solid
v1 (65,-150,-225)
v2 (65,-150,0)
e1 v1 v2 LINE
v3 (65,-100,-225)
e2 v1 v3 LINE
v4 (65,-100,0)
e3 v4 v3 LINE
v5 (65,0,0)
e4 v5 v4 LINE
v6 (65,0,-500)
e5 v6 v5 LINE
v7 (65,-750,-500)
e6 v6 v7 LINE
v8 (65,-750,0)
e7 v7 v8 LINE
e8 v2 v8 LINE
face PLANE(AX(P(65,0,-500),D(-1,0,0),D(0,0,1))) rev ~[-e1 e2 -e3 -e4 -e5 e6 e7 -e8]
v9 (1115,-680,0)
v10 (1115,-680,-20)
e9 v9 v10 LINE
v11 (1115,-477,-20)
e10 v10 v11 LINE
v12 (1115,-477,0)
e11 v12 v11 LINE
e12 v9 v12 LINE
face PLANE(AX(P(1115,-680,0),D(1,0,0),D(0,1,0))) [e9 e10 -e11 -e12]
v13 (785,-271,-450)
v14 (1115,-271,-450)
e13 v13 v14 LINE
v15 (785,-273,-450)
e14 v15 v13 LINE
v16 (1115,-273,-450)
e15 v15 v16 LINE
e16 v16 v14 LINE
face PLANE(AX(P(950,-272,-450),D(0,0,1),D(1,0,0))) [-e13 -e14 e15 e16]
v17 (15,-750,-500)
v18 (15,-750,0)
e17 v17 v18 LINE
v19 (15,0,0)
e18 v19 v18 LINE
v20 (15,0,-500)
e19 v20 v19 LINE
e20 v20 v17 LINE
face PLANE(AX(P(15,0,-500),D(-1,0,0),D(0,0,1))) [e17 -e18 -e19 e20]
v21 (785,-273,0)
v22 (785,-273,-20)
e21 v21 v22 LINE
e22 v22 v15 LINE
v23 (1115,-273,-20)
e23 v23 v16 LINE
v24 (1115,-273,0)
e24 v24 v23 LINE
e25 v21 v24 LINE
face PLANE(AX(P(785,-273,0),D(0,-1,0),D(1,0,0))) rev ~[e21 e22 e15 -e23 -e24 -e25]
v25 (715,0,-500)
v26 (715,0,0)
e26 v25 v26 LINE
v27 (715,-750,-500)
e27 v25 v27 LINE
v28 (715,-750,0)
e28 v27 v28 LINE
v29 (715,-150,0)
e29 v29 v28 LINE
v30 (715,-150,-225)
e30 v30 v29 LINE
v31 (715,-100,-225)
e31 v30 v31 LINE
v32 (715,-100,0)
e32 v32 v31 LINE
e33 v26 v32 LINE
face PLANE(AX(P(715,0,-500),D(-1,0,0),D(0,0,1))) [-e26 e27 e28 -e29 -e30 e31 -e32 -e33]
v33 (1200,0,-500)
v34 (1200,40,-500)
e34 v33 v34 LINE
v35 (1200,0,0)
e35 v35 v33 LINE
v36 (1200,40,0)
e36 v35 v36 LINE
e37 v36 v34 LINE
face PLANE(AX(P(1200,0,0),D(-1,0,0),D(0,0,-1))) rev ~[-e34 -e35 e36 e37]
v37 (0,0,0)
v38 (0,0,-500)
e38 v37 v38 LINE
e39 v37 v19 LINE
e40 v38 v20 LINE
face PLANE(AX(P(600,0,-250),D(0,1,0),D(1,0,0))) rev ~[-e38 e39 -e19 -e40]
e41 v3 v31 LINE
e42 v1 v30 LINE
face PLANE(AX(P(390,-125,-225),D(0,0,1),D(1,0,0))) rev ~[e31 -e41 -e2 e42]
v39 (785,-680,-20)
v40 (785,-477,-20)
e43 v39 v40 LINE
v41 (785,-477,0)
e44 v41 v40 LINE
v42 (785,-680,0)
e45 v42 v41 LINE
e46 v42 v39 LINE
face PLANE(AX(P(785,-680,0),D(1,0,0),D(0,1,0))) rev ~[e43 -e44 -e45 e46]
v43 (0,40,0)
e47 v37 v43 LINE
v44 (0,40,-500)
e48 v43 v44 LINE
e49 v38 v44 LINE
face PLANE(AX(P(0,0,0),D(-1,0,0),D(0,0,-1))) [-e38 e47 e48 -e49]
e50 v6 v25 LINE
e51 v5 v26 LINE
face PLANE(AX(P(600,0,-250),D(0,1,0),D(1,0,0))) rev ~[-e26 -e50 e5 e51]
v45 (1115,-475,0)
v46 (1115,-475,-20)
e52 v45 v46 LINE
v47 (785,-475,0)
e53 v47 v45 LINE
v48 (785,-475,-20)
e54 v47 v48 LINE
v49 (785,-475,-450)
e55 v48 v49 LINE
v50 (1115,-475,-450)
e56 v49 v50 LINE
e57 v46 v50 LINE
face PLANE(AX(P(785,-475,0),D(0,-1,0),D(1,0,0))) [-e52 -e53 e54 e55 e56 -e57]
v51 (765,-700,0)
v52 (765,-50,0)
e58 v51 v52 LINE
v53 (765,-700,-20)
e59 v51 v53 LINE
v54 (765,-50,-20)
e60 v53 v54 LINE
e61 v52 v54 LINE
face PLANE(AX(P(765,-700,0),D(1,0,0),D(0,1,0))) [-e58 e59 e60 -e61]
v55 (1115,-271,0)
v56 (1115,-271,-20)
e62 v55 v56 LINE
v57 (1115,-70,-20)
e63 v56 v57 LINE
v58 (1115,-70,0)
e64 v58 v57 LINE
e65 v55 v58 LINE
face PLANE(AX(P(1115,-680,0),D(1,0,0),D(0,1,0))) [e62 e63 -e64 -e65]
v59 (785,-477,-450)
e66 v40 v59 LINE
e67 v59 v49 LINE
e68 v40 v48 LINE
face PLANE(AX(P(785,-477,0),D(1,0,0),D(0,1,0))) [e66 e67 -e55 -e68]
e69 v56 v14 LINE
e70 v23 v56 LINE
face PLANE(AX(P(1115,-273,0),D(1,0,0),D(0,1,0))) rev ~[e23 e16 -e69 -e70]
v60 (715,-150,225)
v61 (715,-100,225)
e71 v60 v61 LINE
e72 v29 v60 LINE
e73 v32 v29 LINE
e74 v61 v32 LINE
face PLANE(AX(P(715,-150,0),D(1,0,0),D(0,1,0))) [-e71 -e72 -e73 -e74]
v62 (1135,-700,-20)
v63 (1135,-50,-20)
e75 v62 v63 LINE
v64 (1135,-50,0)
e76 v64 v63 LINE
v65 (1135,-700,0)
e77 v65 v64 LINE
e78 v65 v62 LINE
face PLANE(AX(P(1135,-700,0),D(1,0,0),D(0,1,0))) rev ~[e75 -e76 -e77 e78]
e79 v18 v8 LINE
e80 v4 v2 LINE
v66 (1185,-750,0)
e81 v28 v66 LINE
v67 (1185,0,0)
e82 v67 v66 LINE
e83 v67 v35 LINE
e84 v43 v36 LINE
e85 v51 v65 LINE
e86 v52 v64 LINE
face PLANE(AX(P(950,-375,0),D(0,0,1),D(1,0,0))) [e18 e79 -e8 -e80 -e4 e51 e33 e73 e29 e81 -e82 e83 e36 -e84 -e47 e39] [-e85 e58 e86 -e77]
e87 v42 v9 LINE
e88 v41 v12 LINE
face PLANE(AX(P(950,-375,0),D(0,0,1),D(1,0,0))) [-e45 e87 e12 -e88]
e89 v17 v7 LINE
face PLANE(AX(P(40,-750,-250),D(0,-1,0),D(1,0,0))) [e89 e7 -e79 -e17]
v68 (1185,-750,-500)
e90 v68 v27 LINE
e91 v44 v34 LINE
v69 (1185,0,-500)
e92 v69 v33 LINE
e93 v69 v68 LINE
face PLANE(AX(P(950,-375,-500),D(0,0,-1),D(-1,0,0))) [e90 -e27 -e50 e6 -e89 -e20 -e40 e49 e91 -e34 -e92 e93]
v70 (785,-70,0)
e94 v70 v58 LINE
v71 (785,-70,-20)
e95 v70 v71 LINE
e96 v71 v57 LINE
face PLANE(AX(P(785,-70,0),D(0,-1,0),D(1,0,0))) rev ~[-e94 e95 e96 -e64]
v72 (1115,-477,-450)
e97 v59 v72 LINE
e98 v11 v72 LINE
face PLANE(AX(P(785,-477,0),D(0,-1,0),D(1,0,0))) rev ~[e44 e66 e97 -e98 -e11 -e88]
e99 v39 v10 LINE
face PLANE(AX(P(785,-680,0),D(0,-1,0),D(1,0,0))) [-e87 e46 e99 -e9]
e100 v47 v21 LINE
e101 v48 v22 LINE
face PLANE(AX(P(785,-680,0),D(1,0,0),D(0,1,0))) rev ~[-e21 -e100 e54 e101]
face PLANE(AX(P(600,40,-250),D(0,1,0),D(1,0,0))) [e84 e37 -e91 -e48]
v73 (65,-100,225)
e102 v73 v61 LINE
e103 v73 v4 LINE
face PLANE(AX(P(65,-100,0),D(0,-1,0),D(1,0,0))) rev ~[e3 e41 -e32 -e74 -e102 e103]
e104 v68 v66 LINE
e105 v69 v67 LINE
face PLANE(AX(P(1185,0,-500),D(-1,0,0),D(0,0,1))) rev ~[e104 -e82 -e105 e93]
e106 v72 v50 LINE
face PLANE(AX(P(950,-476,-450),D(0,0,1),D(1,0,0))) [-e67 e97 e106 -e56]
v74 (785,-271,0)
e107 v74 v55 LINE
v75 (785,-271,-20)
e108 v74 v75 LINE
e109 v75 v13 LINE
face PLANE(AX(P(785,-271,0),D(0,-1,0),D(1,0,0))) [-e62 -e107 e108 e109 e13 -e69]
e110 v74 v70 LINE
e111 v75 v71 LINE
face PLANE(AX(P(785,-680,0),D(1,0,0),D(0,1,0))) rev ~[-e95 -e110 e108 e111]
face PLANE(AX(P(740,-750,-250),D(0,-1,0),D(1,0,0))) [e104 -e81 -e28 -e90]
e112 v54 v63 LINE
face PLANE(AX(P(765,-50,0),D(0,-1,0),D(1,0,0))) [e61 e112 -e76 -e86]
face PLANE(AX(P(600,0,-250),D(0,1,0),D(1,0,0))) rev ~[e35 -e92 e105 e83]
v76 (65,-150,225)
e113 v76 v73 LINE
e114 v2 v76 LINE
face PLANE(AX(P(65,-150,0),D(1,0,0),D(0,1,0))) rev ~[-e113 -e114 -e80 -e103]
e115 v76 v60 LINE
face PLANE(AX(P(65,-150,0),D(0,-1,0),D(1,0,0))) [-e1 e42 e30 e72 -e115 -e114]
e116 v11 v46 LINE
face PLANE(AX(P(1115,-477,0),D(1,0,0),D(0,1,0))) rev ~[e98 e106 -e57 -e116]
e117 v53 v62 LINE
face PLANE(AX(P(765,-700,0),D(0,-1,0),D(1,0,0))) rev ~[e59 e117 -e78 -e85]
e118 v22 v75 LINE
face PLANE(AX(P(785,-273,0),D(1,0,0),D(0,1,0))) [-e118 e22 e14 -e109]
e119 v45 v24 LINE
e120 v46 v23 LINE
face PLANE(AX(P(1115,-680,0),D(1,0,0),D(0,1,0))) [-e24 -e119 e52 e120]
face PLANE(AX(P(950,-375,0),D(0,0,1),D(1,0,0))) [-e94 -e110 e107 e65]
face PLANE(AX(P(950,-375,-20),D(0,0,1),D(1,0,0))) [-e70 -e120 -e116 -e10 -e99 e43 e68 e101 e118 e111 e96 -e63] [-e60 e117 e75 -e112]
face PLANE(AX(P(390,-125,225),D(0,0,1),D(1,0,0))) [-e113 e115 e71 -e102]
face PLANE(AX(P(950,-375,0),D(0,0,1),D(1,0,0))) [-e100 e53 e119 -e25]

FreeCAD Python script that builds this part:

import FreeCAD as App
import Part
import Sketcher
from FreeCAD import Vector

doc = App.newDocument("Part")
body = doc.addObject("PartDesign::Body", "Body")

sketch1 = body.newObject("Sketcher::SketchObject", "Sketch")
sketch1.AttachmentSupport = (doc.getObject("XZ_Plane"), [""])
sketch1.MapMode = "FlatFace"
sketch1.addGeometry([
    Part.LineSegment(Vector(0, -500, 0), Vector(0, 0, 0)),
    Part.LineSegment(Vector(0, 0, 0), Vector(1200, 0, 0)),
    Part.LineSegment(Vector(1200, 0, 0), Vector(1200, -500, 0)),
    Part.LineSegment(Vector(1200, -500, 0), Vector(0, -500, 0)),
], False)
sketch1.addConstraint([
    Sketcher.Constraint("Coincident", 0, 2, 1, 1),
    Sketcher.Constraint("Coincident", 1, 2, 2, 1),
    Sketcher.Constraint("Coincident", 2, 2, 3, 1),
    Sketcher.Constraint("Coincident", 3, 2, 0, 1),
    Sketcher.Constraint("Vertical", 0),
    Sketcher.Constraint("Horizontal", 1),
    Sketcher.Constraint("Vertical", 2),
    Sketcher.Constraint("Horizontal", 3),
    Sketcher.Constraint("Coincident", 0, 2, -1, 1),
    Sketcher.Constraint("DistanceX", 1, 1, 1, 2, 1200.0),
    Sketcher.Constraint("DistanceY", 0, 1, 0, 2, 500.0),
])
pad1 = body.newObject("PartDesign::Pad", "Pad")
pad1.Profile = sketch1
pad1.Length = 40
pad1.Reversed = True

sketch2 = body.newObject("Sketcher::SketchObject", "Sketch001")
sketch2.AttachmentSupport = (doc.getObject("XZ_Plane"), [""])
sketch2.MapMode = "FlatFace"
sketch2.addGeometry([
    Part.LineSegment(Vector(15, 0, 0), Vector(15, -500, 0)),
    Part.LineSegment(Vector(15, -500, 0), Vector(65, -500, 0)),
    Part.LineSegment(Vector(65, -500, 0), Vector(65, 0, 0)),
    Part.LineSegment(Vector(65, 0, 0), Vector(15, 0, 0)),
    Part.LineSegment(Vector(1135, 0, 0), Vector(1135, -500, 0)),
    Part.LineSegment(Vector(1135, -500, 0), Vector(1185, -500, 0)),
    Part.LineSegment(Vector(1185, -500, 0), Vector(1185, 0, 0)),
    Part.LineSegment(Vector(1185, 0, 0), Vector(1135, 0, 0)),
], False)
sketch2.addConstraint([
    Sketcher.Constraint("Coincident", 0, 2, 1, 1),
    Sketcher.Constraint("Coincident", 1, 2, 2, 1),
    Sketcher.Constraint("Coincident", 2, 2, 3, 1),
    Sketcher.Constraint("Coincident", 3, 2, 0, 1),
    Sketcher.Constraint("Coincident", 4, 2, 5, 1),
    Sketcher.Constraint("Coincident", 5, 2, 6, 1),
    Sketcher.Constraint("Coincident", 6, 2, 7, 1),
    Sketcher.Constraint("Coincident", 7, 2, 4, 1),
    Sketcher.Constraint("Vertical", 0),
    Sketcher.Constraint("Horizontal", 1),
    Sketcher.Constraint("Vertical", 2),
    Sketcher.Constraint("Horizontal", 3),
    Sketcher.Constraint("Vertical", 4),
    Sketcher.Constraint("Horizontal", 5),
    Sketcher.Constraint("Vertical", 6),
    Sketcher.Constraint("Horizontal", 7),
    Sketcher.Constraint("PointOnObject", 2, 2, -1),
    Sketcher.Constraint("PointOnObject", 6, 2, -1),
    Sketcher.Constraint("Horizontal", 1, 2, 4, 2),
    Sketcher.Constraint("Equal", 3, 5),
    Sketcher.Constraint("DistanceX", 1, 1, 1, 2, 50.0),
    Sketcher.Constraint("DistanceY", 0, 2, 0, 1, 500.0),
    Sketcher.Constraint("DistanceX", -1, 1, 0, 2, 15.0),
    Sketcher.Constraint("DistanceX", -1, 1, 4, 2, 1135.0),
])
pad2 = body.newObject("PartDesign::Pad", "Pad001")
pad2.Profile = sketch2
pad2.Length = 750

sketch3 = body.newObject("Sketcher::SketchObject", "Sketch002")
sketch3.AttachmentSupport = (doc.getObject("XY_Plane"), [""])
sketch3.MapMode = "FlatFace"
sketch3.addGeometry([
    Part.LineSegment(Vector(65, -100, 0), Vector(65, -150, 0)),
    Part.LineSegment(Vector(65, -150, 0), Vector(715, -150, 0)),
    Part.LineSegment(Vector(715, -150, 0), Vector(715, -100, 0)),
    Part.LineSegment(Vector(715, -100, 0), Vector(65, -100, 0)),
], False)
sketch3.addConstraint([
    Sketcher.Constraint("Coincident", 0, 2, 1, 1),
    Sketcher.Constraint("Coincident", 1, 2, 2, 1),
    Sketcher.Constraint("Coincident", 2, 2, 3, 1),
    Sketcher.Constraint("Coincident", 3, 2, 0, 1),
    Sketcher.Constraint("Vertical", 0),
    Sketcher.Constraint("Horizontal", 1),
    Sketcher.Constraint("Vertical", 2),
    Sketcher.Constraint("Horizontal", 3),
    Sketcher.Constraint("DistanceX", 1, 1, 1, 2, 650.0),
    Sketcher.Constraint("DistanceY", 0, 2, 0, 1, 50.0),
    Sketcher.Constraint("DistanceX", -1, 1, 0, 2, 65.0),
    Sketcher.Constraint("DistanceY", 0, 2, -1, 1, 150.0),
])
pad3 = body.newObject("PartDesign::Pad", "Pad002")
pad3.Profile = sketch3
pad3.Length = 450
pad3.Midplane = True

sketch4 = body.newObject("Sketcher::SketchObject", "Sketch003")
sketch4.AttachmentSupport = (doc.getObject("XZ_Plane"), [""])
sketch4.MapMode = "FlatFace"
sketch4.addGeometry([
    Part.LineSegment(Vector(715, 0, 0), Vector(715, -500, 0)),
    Part.LineSegment(Vector(715, -500, 0), Vector(765, -500, 0)),
    Part.LineSegment(Vector(765, -500, 0), Vector(765, 0, 0)),
    Part.LineSegment(Vector(765, 0, 0), Vector(715, 0, 0)),
], False)
sketch4.addConstraint([
    Sketcher.Constraint("Coincident", 0, 2, 1, 1),
    Sketcher.Constraint("Coincident", 1, 2, 2, 1),
    Sketcher.Constraint("Coincident", 2, 2, 3, 1),
    Sketcher.Constraint("Coincident", 3, 2, 0, 1),
    Sketcher.Constraint("Vertical", 0),
    Sketcher.Constraint("Horizontal", 1),
    Sketcher.Constraint("Vertical", 2),
    Sketcher.Constraint("Horizontal", 3),
    Sketcher.Constraint("PointOnObject", 2, 2, -1),
    Sketcher.Constraint("DistanceX", 1, 1, 1, 2, 50.0),
    Sketcher.Constraint("DistanceY", 0, 2, 0, 1, 500.0),
    Sketcher.Constraint("DistanceX", -1, 1, 0, 2, 715.0),
])
pad4 = body.newObject("PartDesign::Pad", "Pad003")
pad4.Profile = sketch4
pad4.Length = 750

sketch5 = body.newObject("Sketcher::SketchObject", "Sketch004")
sketch5.AttachmentSupport = (doc.getObject("XY_Plane"), [""])
sketch5.MapMode = "FlatFace"
sketch5.addGeometry([
    Part.LineSegment(Vector(765, 0, 0), Vector(765, -50, 0)),
    Part.LineSegment(Vector(765, -50, 0), Vector(1135, -50, 0)),
    Part.LineSegment(Vector(1135, -50, 0), Vector(1135, 0, 0)),
    Part.LineSegment(Vector(1135, 0, 0), Vector(765, 0, 0)),
    Part.LineSegment(Vector(765, -700, 0), Vector(765, -750, 0)),
    Part.LineSegment(Vector(765, -750, 0), Vector(1135, -750, 0)),
    Part.LineSegment(Vector(1135, -750, 0), Vector(1135, -700, 0)),
    Part.LineSegment(Vector(1135, -700, 0), Vector(765, -700, 0)),
], False)
sketch5.addConstraint([
    Sketcher.Constraint("Coincident", 0, 2, 1, 1),
    Sketcher.Constraint("Coincident", 1, 2, 2, 1),
    Sketcher.Constraint("Coincident", 2, 2, 3, 1),
    Sketcher.Constraint("Coincident", 3, 2, 0, 1),
    Sketcher.Constraint("Coincident", 4, 2, 5, 1),
    Sketcher.Constraint("Coincident", 5, 2, 6, 1),
    Sketcher.Constraint("Coincident", 6, 2, 7, 1),
    Sketcher.Constraint("Coincident", 7, 2, 4, 1),
    Sketcher.Constraint("Vertical", 0),
    Sketcher.Constraint("Horizontal", 1),
    Sketcher.Constraint("Vertical", 2),
    Sketcher.Constraint("Horizontal", 3),
    Sketcher.Constraint("Vertical", 4),
    Sketcher.Constraint("Horizontal", 5),
    Sketcher.Constraint("Vertical", 6),
    Sketcher.Constraint("Horizontal", 7),
    Sketcher.Constraint("PointOnObject", 2, 2, -1),
    Sketcher.Constraint("Vertical", 3, 2, 4, 2),
    Sketcher.Constraint("Vertical", 2, 2, 5, 2),
    Sketcher.Constraint("Equal", 2, 4),
    Sketcher.Constraint("DistanceX", 1, 1, 1, 2, 370.0),
    Sketcher.Constraint("DistanceY", 0, 2, 0, 1, 50.0),
    Sketcher.Constraint("DistanceX", -1, 1, 0, 2, 765.0),
    Sketcher.Constraint("DistanceY", 4, 2, -1, 1, 750.0),
])
pad5 = body.newObject("PartDesign::Pad", "Pad004")
pad5.Profile = sketch5
pad5.Length = 500
pad5.Reversed = True

sketch6 = body.newObject("Sketcher::SketchObject", "Sketch005")
sketch6.AttachmentSupport = (doc.getObject("XY_Plane"), [""])
sketch6.MapMode = "FlatFace"
sketch6.AttachmentOffset = App.Placement(Vector(0, 0, -500), App.Rotation())
sketch6.addGeometry([
    Part.LineSegment(Vector(1135, -50, 0), Vector(1135, -700, 0)),
    Part.LineSegment(Vector(1135, -700, 0), Vector(765, -700, 0)),
    Part.LineSegment(Vector(765, -700, 0), Vector(765, -50, 0)),
    Part.LineSegment(Vector(765, -50, 0), Vector(1135, -50, 0)),
], False)
sketch6.addConstraint([
    Sketcher.Constraint("Coincident", 0, 2, 1, 1),
    Sketcher.Constraint("Coincident", 1, 2, 2, 1),
    Sketcher.Constraint("Coincident", 2, 2, 3, 1),
    Sketcher.Constraint("Coincident", 3, 2, 0, 1),
    Sketcher.Constraint("Vertical", 0),
    Sketcher.Constraint("Horizontal", 1),
    Sketcher.Constraint("Vertical", 2),
    Sketcher.Constraint("Horizontal", 3),
    Sketcher.Constraint("DistanceX", 1, 2, 1, 1, 370.0),
    Sketcher.Constraint("DistanceY", 0, 2, 0, 1, 650.0),
    Sketcher.Constraint("DistanceX", -1, 1, 0, 2, 1135.0),
    Sketcher.Constraint("DistanceY", 0, 2, -1, 1, 700.0),
])
pad6 = body.newObject("PartDesign::Pad", "Pad005")
pad6.Profile = sketch6
pad6.Length = 50

sketch7 = body.newObject("Sketcher::SketchObject", "Sketch006")
sketch7.AttachmentSupport = (doc.getObject("XY_Plane"), [""])
sketch7.MapMode = "FlatFace"
sketch7.addGeometry([
    Part.LineSegment(Vector(785, -70, 0), Vector(785, -680, 0)),
    Part.LineSegment(Vector(785, -680, 0), Vector(1115, -680, 0)),
    Part.LineSegment(Vector(1115, -680, 0), Vector(1115, -70, 0)),
    Part.LineSegment(Vector(1115, -70, 0), Vector(785, -70, 0)),
], False)
sketch7.addConstraint([
    Sketcher.Constraint("Coincident", 0, 2, 1, 1),
    Sketcher.Constraint("Coincident", 1, 2, 2, 1),
    Sketcher.Constraint("Coincident", 2, 2, 3, 1),
    Sketcher.Constraint("Coincident", 3, 2, 0, 1),
    Sketcher.Constraint("Vertical", 0),
    Sketcher.Constraint("Horizontal", 1),
    Sketcher.Constraint("Vertical", 2),
    Sketcher.Constraint("Horizontal", 3),
    Sketcher.Constraint("DistanceX", 1, 1, 1, 2, 330.0),
    Sketcher.Constraint("DistanceY", 0, 2, 0, 1, 610.0),
    Sketcher.Constraint("DistanceX", -1, 1, 0, 2, 785.0),
    Sketcher.Constraint("DistanceY", 0, 2, -1, 1, 680.0),
])
pad7 = body.newObject("PartDesign::Pad", "Pad006")
pad7.Profile = sketch7
pad7.Length = 450
pad7.Reversed = True

sketch8 = body.newObject("Sketcher::SketchObject", "Sketch007")
sketch8.AttachmentSupport = (doc.getObject("XY_Plane"), [""])
sketch8.MapMode = "FlatFace"
sketch8.addGeometry([
    Part.LineSegment(Vector(765, -50, 0), Vector(765, -700, 0)),
    Part.LineSegment(Vector(765, -700, 0), Vector(1135, -700, 0)),
    Part.LineSegment(Vector(1135, -700, 0), Vector(1135, -50, 0)),
    Part.LineSegment(Vector(1135, -50, 0), Vector(765, -50, 0)),
    Part.LineSegment(Vector(1115, -680, 0), Vector(785, -680, 0)),
    Part.LineSegment(Vector(785, -680, 0), Vector(785, -70, 0)),
    Part.LineSegment(Vector(785, -70, 0), Vector(1115, -70, 0)),
    Part.LineSegment(Vector(1115, -70, 0), Vector(1115, -680, 0)),
], False)
sketch8.addConstraint([
    Sketcher.Constraint("Coincident", 0, 2, 1, 1),
    Sketcher.Constraint("Coincident", 1, 2, 2, 1),
    Sketcher.Constraint("Coincident", 2, 2, 3, 1),
    Sketcher.Constraint("Coincident", 3, 2, 0, 1),
    Sketcher.Constraint("Coincident", 4, 2, 5, 1),
    Sketcher.Constraint("Coincident", 5, 2, 6, 1),
    Sketcher.Constraint("Coincident", 6, 2, 7, 1),
    Sketcher.Constraint("Coincident", 7, 2, 4, 1),
    Sketcher.Constraint("Vertical", 0),
    Sketcher.Constraint("Horizontal", 1),
    Sketcher.Constraint("Vertical", 2),
    Sketcher.Constraint("Horizontal", 3),
    Sketcher.Constraint("Horizontal", 4),
    Sketcher.Constraint("Vertical", 5),
    Sketcher.Constraint("Horizontal", 6),
    Sketcher.Constraint("Vertical", 7),
    Sketcher.Constraint("DistanceX", 1, 1, 1, 2, 370.0),
    Sketcher.Constraint("DistanceX", 4, 2, 4, 1, 330.0),
    Sketcher.Constraint("DistanceY", 0, 2, 0, 1, 650.0),
    Sketcher.Constraint("DistanceY", 5, 1, 5, 2, 610.0),
    Sketcher.Constraint("DistanceX", -1, 1, 0, 2, 765.0),
    Sketcher.Constraint("DistanceY", 0, 2, -1, 1, 700.0),
    Sketcher.Constraint("DistanceX", -1, 1, 4, 2, 785.0),
    Sketcher.Constraint("DistanceY", 4, 2, -1, 1, 680.0),
])
pad8 = body.newObject("PartDesign::Pad", "Pad007")
pad8.Profile = sketch8
pad8.Length = 450
pad8.Reversed = True

sketch9 = body.newObject("Sketcher::SketchObject", "Sketch008")
sketch9.AttachmentSupport = (doc.getObject("XY_Plane"), [""])
sketch9.MapMode = "FlatFace"
sketch9.addGeometry([
    Part.LineSegment(Vector(765, -50, 0), Vector(765, -700, 0)),
    Part.LineSegment(Vector(765, -700, 0), Vector(1135, -700, 0)),
    Part.LineSegment(Vector(1135, -700, 0), Vector(1135, -50, 0)),
    Part.LineSegment(Vector(1135, -50, 0), Vector(765, -50, 0)),
    Part.LineSegment(Vector(1115, -680, 0), Vector(785, -680, 0)),
    Part.LineSegment(Vector(785, -680, 0), Vector(785, -70, 0)),
    Part.LineSegment(Vector(785, -70, 0), Vector(1115, -70, 0)),
    Part.LineSegment(Vector(1115, -70, 0), Vector(1115, -680, 0)),
], False)
sketch9.addConstraint([
    Sketcher.Constraint("Coincident", 0, 2, 1, 1),
    Sketcher.Constraint("Coincident", 1, 2, 2, 1),
    Sketcher.Constraint("Coincident", 2, 2, 3, 1),
    Sketcher.Constraint("Coincident", 3, 2, 0, 1),
    Sketcher.Constraint("Coincident", 4, 2, 5, 1),
    Sketcher.Constraint("Coincident", 5, 2, 6, 1),
    Sketcher.Constraint("Coincident", 6, 2, 7, 1),
    Sketcher.Constraint("Coincident", 7, 2, 4, 1),
    Sketcher.Constraint("Vertical", 0),
    Sketcher.Constraint("Horizontal", 1),
    Sketcher.Constraint("Vertical", 2),
    Sketcher.Constraint("Horizontal", 3),
    Sketcher.Constraint("Horizontal", 4),
    Sketcher.Constraint("Vertical", 5),
    Sketcher.Constraint("Horizontal", 6),
    Sketcher.Constraint("Vertical", 7),
    Sketcher.Constraint("DistanceX", 1, 1, 1, 2, 370.0),
    Sketcher.Constraint("DistanceX", 4, 2, 4, 1, 330.0),
    Sketcher.Constraint("DistanceY", 0, 2, 0, 1, 650.0),
    Sketcher.Constraint("DistanceY", 5, 1, 5, 2, 610.0),
    Sketcher.Constraint("DistanceX", -1, 1, 0, 2, 765.0),
    Sketcher.Constraint("DistanceY", 0, 2, -1, 1, 700.0),
    Sketcher.Constraint("DistanceX", -1, 1, 4, 2, 785.0),
    Sketcher.Constraint("DistanceY", 4, 2, -1, 1, 680.0),
])
pocket1 = body.newObject("PartDesign::Pocket", "Pocket")
pocket1.Profile = sketch9
pocket1.Length = 20

sketch10 = body.newObject("Sketcher::SketchObject", "Sketch009")
sketch10.AttachmentSupport = (doc.getObject("XY_Plane"), [""])
sketch10.MapMode = "FlatFace"
sketch10.addGeometry([
    Part.LineSegment(Vector(785, -271, 0), Vector(785, -273, 0)),
    Part.LineSegment(Vector(785, -273, 0), Vector(1115, -273, 0)),
    Part.LineSegment(Vector(1115, -273, 0), Vector(1115, -271, 0)),
    Part.LineSegment(Vector(1115, -271, 0), Vector(785, -271, 0)),
    Part.LineSegment(Vector(785, -475, 0), Vector(785, -477, 0)),
    Part.LineSegment(Vector(785, -477, 0), Vector(1115, -477, 0)),
    Part.LineSegment(Vector(1115, -477, 0), Vector(1115, -475, 0)),
    Part.LineSegment(Vector(1115, -475, 0), Vector(785, -475, 0)),
], False)
sketch10.addConstraint([
    Sketcher.Constraint("Coincident", 0, 2, 1, 1),
    Sketcher.Constraint("Coincident", 1, 2, 2, 1),
    Sketcher.Constraint("Coincident", 2, 2, 3, 1),
    Sketcher.Constraint("Coincident", 3, 2, 0, 1),
    Sketcher.Constraint("Coincident", 4, 2, 5, 1),
    Sketcher.Constraint("Coincident", 5, 2, 6, 1),
    Sketcher.Constraint("Coincident", 6, 2, 7, 1),
    Sketcher.Constraint("Coincident", 7, 2, 4, 1),
    Sketcher.Constraint("Vertical", 0),
    Sketcher.Constraint("Horizontal", 1),
    Sketcher.Constraint("Vertical", 2),
    Sketcher.Constraint("Horizontal", 3),
    Sketcher.Constraint("Vertical", 4),
    Sketcher.Constraint("Horizontal", 5),
    Sketcher.Constraint("Vertical", 6),
    Sketcher.Constraint("Horizontal", 7),
    Sketcher.Constraint("Vertical", 3, 2, 4, 2),
    Sketcher.Constraint("Vertical", 2, 2, 5, 2),
    Sketcher.Constraint("Equal", 2, 4),
    Sketcher.Constraint("DistanceX", 1, 1, 1, 2, 330.0),
    Sketcher.Constraint("DistanceY", 0, 2, 0, 1, 2.0),
    Sketcher.Constraint("DistanceX", -1, 1, 0, 2, 785.0),
    Sketcher.Constraint("DistanceY", 0, 2, -1, 1, 273.0),
    Sketcher.Constraint("DistanceY", 4, 2, -1, 1, 477.0),
])
pocket2 = body.newObject("PartDesign::Pocket", "Pocket001")
pocket2.Profile = sketch10
pocket2.Length = 450

doc.recompute()
